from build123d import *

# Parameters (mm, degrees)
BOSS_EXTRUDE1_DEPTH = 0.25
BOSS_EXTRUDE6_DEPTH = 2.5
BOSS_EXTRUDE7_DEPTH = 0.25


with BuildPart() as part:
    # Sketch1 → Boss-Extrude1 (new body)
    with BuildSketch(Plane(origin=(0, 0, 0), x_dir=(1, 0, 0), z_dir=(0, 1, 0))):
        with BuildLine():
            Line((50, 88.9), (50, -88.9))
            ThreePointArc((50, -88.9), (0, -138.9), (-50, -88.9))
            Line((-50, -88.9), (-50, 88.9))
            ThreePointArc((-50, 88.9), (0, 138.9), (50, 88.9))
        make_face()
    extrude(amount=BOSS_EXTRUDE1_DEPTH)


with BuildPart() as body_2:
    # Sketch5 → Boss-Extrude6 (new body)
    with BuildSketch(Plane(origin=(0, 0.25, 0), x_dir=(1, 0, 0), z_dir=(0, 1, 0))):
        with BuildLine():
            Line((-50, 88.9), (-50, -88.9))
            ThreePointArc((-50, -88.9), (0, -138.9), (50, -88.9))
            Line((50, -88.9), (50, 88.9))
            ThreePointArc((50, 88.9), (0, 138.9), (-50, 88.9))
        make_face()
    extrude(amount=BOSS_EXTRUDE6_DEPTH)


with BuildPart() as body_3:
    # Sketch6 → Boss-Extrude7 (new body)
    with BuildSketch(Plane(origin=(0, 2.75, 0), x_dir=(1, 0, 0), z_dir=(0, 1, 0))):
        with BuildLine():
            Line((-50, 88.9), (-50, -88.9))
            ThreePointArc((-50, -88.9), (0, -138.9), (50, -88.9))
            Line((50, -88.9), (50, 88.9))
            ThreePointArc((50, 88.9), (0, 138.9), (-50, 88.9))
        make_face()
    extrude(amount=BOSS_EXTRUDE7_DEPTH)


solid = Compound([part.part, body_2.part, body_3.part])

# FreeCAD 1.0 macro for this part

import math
import FreeCAD as App
import Part
import Sketcher
Q = App.Units.Quantity

doc = App.newDocument("Part")
body = doc.addObject("PartDesign::Body", "Body")

# Sketch on XZ plane
sketch1 = doc.addObject("Sketcher::SketchObject", "Sketch")
body.addObject(sketch1)
sketch1.AttachmentSupport = (doc.XZ_Plane, [""])
sketch1.MapMode = "FlatFace"
sketch1.addGeometry(Part.LineSegment(App.Vector(50, 89, 0), App.Vector(50, -89, 0)), False)
sketch1.addGeometry(Part.ArcOfCircle(Part.Circle(App.Vector(0, -89, 0), App.Vector(0, 0, 1), 50), math.radians(180), math.radians(360)), False)
sketch1.addGeometry(Part.LineSegment(App.Vector(-50, -89, 0), App.Vector(-50, 89, 0)), False)
sketch1.addGeometry(Part.ArcOfCircle(Part.Circle(App.Vector(0, 89, 0), App.Vector(0, 0, 1), 50), math.radians(0), math.radians(180)), False)
sketch1.addConstraint(Sketcher.Constraint("Tangent", 0, 2, 1, 2))
sketch1.addConstraint(Sketcher.Constraint("Tangent", 1, 1, 2, 1))
sketch1.addConstraint(Sketcher.Constraint("Tangent", 2, 2, 3, 2))
sketch1.addConstraint(Sketcher.Constraint("Tangent", 3, 1, 0, 1))
sketch1.addConstraint(Sketcher.Constraint("Vertical", 0))
sketch1.addConstraint(Sketcher.Constraint("Vertical", 2))
sketch1.addConstraint(Sketcher.Constraint("Symmetric", 1, 3, 3, 3, -1, 1))
sketch1.addConstraint(Sketcher.Constraint("Radius", 1, Q("50 mm")))
sketch1.addConstraint(Sketcher.Constraint("DistanceY", 0, 2, 0, 1, Q("177.8 mm")))
pad1 = doc.addObject("PartDesign::Pad", "Pad")
body.addObject(pad1)
pad1.Profile = sketch1
pad1.Length = 0.25
pad1.Reversed = True
body2 = doc.addObject("PartDesign::Body", "Body001")

# Sketch on XZ plane
sketch2 = doc.addObject("Sketcher::SketchObject", "Sketch001")
body2.addObject(sketch2)
sketch2.AttachmentSupport = (doc.getObject("XZ_Plane001"), [""])
sketch2.MapMode = "FlatFace"
sketch2.AttachmentOffset = App.Placement(App.Vector(0, 0, -0.25), App.Rotation())
sketch2.addGeometry(Part.LineSegment(App.Vector(-50, -89, 0), App.Vector(-50, 89, 0)), False)
sketch2.addGeometry(Part.ArcOfCircle(Part.Circle(App.Vector(0, 89, 0), App.Vector(0, 0, 1), 50), math.radians(0), math.radians(180)), False)
sketch2.addGeometry(Part.LineSegment(App.Vector(50, 89, 0), App.Vector(50, -89, 0)), False)
sketch2.addGeometry(Part.ArcOfCircle(Part.Circle(App.Vector(0, -89, 0), App.Vector(0, 0, 1), 50), math.radians(180), math.radians(360)), False)
sketch2.addConstraint(Sketcher.Constraint("Tangent", 0, 2, 1, 2))
sketch2.addConstraint(Sketcher.Constraint("Tangent", 1, 1, 2, 1))
sketch2.addConstraint(Sketcher.Constraint("Tangent", 2, 2, 3, 2))
sketch2.addConstraint(Sketcher.Constraint("Tangent", 3, 1, 0, 1))
sketch2.addConstraint(Sketcher.Constraint("Vertical", 0))
sketch2.addConstraint(Sketcher.Constraint("Vertical", 2))
sketch2.addConstraint(Sketcher.Constraint("Symmetric", 1, 3, 3, 3, -1, 1))
sketch2.addConstraint(Sketcher.Constraint("Radius", 1, Q("50 mm")))
sketch2.addConstraint(Sketcher.Constraint("DistanceY", 0, 1, 0, 2, Q("177.8 mm")))
pad2 = doc.addObject("PartDesign::Pad", "Pad001")
body2.addObject(pad2)
pad2.Profile = sketch2
pad2.Length = 2.5
pad2.Reversed = True
body3 = doc.addObject("PartDesign::Body", "Body002")

# Sketch on XZ plane
sketch3 = doc.addObject("Sketcher::SketchObject", "Sketch002")
body3.addObject(sketch3)
sketch3.AttachmentSupport = (doc.getObject("XZ_Plane002"), [""])
sketch3.MapMode = "FlatFace"
sketch3.AttachmentOffset = App.Placement(App.Vector(0, 0, -2.75), App.Rotation())
sketch3.addGeometry(Part.LineSegment(App.Vector(-50, -89, 0), App.Vector(-50, 89, 0)), False)
sketch3.addGeometry(Part.ArcOfCircle(Part.Circle(App.Vector(0, 89, 0), App.Vector(0, 0, 1), 50), math.radians(0), math.radians(180)), False)
sketch3.addGeometry(Part.LineSegment(App.Vector(50, 89, 0), App.Vector(50, -89, 0)), False)
sketch3.addGeometry(Part.ArcOfCircle(Part.Circle(App.Vector(0, -89, 0), App.Vector(0, 0, 1), 50), math.radians(180), math.radians(360)), False)
sketch3.addConstraint(Sketcher.Constraint("Tangent", 0, 2, 1, 2))
sketch3.addConstraint(Sketcher.Constraint("Tangent", 1, 1, 2, 1))
sketch3.addConstraint(Sketcher.Constraint("Tangent", 2, 2, 3, 2))
sketch3.addConstraint(Sketcher.Constraint("Tangent", 3, 1, 0, 1))
sketch3.addConstraint(Sketcher.Constraint("Vertical", 0))
sketch3.addConstraint(Sketcher.Constraint("Vertical", 2))
sketch3.addConstraint(Sketcher.Constraint("Symmetric", 1, 3, 3, 3, -1, 1))
sketch3.addConstraint(Sketcher.Constraint("Radius", 1, Q("50 mm")))
sketch3.addConstraint(Sketcher.Constraint("DistanceY", 0, 1, 0, 2, Q("177.8 mm")))
pad3 = doc.addObject("PartDesign::Pad", "Pad002")
body3.addObject(pad3)
pad3.Profile = sketch3
pad3.Length = 0.25
pad3.Reversed = True

doc.recompute()
